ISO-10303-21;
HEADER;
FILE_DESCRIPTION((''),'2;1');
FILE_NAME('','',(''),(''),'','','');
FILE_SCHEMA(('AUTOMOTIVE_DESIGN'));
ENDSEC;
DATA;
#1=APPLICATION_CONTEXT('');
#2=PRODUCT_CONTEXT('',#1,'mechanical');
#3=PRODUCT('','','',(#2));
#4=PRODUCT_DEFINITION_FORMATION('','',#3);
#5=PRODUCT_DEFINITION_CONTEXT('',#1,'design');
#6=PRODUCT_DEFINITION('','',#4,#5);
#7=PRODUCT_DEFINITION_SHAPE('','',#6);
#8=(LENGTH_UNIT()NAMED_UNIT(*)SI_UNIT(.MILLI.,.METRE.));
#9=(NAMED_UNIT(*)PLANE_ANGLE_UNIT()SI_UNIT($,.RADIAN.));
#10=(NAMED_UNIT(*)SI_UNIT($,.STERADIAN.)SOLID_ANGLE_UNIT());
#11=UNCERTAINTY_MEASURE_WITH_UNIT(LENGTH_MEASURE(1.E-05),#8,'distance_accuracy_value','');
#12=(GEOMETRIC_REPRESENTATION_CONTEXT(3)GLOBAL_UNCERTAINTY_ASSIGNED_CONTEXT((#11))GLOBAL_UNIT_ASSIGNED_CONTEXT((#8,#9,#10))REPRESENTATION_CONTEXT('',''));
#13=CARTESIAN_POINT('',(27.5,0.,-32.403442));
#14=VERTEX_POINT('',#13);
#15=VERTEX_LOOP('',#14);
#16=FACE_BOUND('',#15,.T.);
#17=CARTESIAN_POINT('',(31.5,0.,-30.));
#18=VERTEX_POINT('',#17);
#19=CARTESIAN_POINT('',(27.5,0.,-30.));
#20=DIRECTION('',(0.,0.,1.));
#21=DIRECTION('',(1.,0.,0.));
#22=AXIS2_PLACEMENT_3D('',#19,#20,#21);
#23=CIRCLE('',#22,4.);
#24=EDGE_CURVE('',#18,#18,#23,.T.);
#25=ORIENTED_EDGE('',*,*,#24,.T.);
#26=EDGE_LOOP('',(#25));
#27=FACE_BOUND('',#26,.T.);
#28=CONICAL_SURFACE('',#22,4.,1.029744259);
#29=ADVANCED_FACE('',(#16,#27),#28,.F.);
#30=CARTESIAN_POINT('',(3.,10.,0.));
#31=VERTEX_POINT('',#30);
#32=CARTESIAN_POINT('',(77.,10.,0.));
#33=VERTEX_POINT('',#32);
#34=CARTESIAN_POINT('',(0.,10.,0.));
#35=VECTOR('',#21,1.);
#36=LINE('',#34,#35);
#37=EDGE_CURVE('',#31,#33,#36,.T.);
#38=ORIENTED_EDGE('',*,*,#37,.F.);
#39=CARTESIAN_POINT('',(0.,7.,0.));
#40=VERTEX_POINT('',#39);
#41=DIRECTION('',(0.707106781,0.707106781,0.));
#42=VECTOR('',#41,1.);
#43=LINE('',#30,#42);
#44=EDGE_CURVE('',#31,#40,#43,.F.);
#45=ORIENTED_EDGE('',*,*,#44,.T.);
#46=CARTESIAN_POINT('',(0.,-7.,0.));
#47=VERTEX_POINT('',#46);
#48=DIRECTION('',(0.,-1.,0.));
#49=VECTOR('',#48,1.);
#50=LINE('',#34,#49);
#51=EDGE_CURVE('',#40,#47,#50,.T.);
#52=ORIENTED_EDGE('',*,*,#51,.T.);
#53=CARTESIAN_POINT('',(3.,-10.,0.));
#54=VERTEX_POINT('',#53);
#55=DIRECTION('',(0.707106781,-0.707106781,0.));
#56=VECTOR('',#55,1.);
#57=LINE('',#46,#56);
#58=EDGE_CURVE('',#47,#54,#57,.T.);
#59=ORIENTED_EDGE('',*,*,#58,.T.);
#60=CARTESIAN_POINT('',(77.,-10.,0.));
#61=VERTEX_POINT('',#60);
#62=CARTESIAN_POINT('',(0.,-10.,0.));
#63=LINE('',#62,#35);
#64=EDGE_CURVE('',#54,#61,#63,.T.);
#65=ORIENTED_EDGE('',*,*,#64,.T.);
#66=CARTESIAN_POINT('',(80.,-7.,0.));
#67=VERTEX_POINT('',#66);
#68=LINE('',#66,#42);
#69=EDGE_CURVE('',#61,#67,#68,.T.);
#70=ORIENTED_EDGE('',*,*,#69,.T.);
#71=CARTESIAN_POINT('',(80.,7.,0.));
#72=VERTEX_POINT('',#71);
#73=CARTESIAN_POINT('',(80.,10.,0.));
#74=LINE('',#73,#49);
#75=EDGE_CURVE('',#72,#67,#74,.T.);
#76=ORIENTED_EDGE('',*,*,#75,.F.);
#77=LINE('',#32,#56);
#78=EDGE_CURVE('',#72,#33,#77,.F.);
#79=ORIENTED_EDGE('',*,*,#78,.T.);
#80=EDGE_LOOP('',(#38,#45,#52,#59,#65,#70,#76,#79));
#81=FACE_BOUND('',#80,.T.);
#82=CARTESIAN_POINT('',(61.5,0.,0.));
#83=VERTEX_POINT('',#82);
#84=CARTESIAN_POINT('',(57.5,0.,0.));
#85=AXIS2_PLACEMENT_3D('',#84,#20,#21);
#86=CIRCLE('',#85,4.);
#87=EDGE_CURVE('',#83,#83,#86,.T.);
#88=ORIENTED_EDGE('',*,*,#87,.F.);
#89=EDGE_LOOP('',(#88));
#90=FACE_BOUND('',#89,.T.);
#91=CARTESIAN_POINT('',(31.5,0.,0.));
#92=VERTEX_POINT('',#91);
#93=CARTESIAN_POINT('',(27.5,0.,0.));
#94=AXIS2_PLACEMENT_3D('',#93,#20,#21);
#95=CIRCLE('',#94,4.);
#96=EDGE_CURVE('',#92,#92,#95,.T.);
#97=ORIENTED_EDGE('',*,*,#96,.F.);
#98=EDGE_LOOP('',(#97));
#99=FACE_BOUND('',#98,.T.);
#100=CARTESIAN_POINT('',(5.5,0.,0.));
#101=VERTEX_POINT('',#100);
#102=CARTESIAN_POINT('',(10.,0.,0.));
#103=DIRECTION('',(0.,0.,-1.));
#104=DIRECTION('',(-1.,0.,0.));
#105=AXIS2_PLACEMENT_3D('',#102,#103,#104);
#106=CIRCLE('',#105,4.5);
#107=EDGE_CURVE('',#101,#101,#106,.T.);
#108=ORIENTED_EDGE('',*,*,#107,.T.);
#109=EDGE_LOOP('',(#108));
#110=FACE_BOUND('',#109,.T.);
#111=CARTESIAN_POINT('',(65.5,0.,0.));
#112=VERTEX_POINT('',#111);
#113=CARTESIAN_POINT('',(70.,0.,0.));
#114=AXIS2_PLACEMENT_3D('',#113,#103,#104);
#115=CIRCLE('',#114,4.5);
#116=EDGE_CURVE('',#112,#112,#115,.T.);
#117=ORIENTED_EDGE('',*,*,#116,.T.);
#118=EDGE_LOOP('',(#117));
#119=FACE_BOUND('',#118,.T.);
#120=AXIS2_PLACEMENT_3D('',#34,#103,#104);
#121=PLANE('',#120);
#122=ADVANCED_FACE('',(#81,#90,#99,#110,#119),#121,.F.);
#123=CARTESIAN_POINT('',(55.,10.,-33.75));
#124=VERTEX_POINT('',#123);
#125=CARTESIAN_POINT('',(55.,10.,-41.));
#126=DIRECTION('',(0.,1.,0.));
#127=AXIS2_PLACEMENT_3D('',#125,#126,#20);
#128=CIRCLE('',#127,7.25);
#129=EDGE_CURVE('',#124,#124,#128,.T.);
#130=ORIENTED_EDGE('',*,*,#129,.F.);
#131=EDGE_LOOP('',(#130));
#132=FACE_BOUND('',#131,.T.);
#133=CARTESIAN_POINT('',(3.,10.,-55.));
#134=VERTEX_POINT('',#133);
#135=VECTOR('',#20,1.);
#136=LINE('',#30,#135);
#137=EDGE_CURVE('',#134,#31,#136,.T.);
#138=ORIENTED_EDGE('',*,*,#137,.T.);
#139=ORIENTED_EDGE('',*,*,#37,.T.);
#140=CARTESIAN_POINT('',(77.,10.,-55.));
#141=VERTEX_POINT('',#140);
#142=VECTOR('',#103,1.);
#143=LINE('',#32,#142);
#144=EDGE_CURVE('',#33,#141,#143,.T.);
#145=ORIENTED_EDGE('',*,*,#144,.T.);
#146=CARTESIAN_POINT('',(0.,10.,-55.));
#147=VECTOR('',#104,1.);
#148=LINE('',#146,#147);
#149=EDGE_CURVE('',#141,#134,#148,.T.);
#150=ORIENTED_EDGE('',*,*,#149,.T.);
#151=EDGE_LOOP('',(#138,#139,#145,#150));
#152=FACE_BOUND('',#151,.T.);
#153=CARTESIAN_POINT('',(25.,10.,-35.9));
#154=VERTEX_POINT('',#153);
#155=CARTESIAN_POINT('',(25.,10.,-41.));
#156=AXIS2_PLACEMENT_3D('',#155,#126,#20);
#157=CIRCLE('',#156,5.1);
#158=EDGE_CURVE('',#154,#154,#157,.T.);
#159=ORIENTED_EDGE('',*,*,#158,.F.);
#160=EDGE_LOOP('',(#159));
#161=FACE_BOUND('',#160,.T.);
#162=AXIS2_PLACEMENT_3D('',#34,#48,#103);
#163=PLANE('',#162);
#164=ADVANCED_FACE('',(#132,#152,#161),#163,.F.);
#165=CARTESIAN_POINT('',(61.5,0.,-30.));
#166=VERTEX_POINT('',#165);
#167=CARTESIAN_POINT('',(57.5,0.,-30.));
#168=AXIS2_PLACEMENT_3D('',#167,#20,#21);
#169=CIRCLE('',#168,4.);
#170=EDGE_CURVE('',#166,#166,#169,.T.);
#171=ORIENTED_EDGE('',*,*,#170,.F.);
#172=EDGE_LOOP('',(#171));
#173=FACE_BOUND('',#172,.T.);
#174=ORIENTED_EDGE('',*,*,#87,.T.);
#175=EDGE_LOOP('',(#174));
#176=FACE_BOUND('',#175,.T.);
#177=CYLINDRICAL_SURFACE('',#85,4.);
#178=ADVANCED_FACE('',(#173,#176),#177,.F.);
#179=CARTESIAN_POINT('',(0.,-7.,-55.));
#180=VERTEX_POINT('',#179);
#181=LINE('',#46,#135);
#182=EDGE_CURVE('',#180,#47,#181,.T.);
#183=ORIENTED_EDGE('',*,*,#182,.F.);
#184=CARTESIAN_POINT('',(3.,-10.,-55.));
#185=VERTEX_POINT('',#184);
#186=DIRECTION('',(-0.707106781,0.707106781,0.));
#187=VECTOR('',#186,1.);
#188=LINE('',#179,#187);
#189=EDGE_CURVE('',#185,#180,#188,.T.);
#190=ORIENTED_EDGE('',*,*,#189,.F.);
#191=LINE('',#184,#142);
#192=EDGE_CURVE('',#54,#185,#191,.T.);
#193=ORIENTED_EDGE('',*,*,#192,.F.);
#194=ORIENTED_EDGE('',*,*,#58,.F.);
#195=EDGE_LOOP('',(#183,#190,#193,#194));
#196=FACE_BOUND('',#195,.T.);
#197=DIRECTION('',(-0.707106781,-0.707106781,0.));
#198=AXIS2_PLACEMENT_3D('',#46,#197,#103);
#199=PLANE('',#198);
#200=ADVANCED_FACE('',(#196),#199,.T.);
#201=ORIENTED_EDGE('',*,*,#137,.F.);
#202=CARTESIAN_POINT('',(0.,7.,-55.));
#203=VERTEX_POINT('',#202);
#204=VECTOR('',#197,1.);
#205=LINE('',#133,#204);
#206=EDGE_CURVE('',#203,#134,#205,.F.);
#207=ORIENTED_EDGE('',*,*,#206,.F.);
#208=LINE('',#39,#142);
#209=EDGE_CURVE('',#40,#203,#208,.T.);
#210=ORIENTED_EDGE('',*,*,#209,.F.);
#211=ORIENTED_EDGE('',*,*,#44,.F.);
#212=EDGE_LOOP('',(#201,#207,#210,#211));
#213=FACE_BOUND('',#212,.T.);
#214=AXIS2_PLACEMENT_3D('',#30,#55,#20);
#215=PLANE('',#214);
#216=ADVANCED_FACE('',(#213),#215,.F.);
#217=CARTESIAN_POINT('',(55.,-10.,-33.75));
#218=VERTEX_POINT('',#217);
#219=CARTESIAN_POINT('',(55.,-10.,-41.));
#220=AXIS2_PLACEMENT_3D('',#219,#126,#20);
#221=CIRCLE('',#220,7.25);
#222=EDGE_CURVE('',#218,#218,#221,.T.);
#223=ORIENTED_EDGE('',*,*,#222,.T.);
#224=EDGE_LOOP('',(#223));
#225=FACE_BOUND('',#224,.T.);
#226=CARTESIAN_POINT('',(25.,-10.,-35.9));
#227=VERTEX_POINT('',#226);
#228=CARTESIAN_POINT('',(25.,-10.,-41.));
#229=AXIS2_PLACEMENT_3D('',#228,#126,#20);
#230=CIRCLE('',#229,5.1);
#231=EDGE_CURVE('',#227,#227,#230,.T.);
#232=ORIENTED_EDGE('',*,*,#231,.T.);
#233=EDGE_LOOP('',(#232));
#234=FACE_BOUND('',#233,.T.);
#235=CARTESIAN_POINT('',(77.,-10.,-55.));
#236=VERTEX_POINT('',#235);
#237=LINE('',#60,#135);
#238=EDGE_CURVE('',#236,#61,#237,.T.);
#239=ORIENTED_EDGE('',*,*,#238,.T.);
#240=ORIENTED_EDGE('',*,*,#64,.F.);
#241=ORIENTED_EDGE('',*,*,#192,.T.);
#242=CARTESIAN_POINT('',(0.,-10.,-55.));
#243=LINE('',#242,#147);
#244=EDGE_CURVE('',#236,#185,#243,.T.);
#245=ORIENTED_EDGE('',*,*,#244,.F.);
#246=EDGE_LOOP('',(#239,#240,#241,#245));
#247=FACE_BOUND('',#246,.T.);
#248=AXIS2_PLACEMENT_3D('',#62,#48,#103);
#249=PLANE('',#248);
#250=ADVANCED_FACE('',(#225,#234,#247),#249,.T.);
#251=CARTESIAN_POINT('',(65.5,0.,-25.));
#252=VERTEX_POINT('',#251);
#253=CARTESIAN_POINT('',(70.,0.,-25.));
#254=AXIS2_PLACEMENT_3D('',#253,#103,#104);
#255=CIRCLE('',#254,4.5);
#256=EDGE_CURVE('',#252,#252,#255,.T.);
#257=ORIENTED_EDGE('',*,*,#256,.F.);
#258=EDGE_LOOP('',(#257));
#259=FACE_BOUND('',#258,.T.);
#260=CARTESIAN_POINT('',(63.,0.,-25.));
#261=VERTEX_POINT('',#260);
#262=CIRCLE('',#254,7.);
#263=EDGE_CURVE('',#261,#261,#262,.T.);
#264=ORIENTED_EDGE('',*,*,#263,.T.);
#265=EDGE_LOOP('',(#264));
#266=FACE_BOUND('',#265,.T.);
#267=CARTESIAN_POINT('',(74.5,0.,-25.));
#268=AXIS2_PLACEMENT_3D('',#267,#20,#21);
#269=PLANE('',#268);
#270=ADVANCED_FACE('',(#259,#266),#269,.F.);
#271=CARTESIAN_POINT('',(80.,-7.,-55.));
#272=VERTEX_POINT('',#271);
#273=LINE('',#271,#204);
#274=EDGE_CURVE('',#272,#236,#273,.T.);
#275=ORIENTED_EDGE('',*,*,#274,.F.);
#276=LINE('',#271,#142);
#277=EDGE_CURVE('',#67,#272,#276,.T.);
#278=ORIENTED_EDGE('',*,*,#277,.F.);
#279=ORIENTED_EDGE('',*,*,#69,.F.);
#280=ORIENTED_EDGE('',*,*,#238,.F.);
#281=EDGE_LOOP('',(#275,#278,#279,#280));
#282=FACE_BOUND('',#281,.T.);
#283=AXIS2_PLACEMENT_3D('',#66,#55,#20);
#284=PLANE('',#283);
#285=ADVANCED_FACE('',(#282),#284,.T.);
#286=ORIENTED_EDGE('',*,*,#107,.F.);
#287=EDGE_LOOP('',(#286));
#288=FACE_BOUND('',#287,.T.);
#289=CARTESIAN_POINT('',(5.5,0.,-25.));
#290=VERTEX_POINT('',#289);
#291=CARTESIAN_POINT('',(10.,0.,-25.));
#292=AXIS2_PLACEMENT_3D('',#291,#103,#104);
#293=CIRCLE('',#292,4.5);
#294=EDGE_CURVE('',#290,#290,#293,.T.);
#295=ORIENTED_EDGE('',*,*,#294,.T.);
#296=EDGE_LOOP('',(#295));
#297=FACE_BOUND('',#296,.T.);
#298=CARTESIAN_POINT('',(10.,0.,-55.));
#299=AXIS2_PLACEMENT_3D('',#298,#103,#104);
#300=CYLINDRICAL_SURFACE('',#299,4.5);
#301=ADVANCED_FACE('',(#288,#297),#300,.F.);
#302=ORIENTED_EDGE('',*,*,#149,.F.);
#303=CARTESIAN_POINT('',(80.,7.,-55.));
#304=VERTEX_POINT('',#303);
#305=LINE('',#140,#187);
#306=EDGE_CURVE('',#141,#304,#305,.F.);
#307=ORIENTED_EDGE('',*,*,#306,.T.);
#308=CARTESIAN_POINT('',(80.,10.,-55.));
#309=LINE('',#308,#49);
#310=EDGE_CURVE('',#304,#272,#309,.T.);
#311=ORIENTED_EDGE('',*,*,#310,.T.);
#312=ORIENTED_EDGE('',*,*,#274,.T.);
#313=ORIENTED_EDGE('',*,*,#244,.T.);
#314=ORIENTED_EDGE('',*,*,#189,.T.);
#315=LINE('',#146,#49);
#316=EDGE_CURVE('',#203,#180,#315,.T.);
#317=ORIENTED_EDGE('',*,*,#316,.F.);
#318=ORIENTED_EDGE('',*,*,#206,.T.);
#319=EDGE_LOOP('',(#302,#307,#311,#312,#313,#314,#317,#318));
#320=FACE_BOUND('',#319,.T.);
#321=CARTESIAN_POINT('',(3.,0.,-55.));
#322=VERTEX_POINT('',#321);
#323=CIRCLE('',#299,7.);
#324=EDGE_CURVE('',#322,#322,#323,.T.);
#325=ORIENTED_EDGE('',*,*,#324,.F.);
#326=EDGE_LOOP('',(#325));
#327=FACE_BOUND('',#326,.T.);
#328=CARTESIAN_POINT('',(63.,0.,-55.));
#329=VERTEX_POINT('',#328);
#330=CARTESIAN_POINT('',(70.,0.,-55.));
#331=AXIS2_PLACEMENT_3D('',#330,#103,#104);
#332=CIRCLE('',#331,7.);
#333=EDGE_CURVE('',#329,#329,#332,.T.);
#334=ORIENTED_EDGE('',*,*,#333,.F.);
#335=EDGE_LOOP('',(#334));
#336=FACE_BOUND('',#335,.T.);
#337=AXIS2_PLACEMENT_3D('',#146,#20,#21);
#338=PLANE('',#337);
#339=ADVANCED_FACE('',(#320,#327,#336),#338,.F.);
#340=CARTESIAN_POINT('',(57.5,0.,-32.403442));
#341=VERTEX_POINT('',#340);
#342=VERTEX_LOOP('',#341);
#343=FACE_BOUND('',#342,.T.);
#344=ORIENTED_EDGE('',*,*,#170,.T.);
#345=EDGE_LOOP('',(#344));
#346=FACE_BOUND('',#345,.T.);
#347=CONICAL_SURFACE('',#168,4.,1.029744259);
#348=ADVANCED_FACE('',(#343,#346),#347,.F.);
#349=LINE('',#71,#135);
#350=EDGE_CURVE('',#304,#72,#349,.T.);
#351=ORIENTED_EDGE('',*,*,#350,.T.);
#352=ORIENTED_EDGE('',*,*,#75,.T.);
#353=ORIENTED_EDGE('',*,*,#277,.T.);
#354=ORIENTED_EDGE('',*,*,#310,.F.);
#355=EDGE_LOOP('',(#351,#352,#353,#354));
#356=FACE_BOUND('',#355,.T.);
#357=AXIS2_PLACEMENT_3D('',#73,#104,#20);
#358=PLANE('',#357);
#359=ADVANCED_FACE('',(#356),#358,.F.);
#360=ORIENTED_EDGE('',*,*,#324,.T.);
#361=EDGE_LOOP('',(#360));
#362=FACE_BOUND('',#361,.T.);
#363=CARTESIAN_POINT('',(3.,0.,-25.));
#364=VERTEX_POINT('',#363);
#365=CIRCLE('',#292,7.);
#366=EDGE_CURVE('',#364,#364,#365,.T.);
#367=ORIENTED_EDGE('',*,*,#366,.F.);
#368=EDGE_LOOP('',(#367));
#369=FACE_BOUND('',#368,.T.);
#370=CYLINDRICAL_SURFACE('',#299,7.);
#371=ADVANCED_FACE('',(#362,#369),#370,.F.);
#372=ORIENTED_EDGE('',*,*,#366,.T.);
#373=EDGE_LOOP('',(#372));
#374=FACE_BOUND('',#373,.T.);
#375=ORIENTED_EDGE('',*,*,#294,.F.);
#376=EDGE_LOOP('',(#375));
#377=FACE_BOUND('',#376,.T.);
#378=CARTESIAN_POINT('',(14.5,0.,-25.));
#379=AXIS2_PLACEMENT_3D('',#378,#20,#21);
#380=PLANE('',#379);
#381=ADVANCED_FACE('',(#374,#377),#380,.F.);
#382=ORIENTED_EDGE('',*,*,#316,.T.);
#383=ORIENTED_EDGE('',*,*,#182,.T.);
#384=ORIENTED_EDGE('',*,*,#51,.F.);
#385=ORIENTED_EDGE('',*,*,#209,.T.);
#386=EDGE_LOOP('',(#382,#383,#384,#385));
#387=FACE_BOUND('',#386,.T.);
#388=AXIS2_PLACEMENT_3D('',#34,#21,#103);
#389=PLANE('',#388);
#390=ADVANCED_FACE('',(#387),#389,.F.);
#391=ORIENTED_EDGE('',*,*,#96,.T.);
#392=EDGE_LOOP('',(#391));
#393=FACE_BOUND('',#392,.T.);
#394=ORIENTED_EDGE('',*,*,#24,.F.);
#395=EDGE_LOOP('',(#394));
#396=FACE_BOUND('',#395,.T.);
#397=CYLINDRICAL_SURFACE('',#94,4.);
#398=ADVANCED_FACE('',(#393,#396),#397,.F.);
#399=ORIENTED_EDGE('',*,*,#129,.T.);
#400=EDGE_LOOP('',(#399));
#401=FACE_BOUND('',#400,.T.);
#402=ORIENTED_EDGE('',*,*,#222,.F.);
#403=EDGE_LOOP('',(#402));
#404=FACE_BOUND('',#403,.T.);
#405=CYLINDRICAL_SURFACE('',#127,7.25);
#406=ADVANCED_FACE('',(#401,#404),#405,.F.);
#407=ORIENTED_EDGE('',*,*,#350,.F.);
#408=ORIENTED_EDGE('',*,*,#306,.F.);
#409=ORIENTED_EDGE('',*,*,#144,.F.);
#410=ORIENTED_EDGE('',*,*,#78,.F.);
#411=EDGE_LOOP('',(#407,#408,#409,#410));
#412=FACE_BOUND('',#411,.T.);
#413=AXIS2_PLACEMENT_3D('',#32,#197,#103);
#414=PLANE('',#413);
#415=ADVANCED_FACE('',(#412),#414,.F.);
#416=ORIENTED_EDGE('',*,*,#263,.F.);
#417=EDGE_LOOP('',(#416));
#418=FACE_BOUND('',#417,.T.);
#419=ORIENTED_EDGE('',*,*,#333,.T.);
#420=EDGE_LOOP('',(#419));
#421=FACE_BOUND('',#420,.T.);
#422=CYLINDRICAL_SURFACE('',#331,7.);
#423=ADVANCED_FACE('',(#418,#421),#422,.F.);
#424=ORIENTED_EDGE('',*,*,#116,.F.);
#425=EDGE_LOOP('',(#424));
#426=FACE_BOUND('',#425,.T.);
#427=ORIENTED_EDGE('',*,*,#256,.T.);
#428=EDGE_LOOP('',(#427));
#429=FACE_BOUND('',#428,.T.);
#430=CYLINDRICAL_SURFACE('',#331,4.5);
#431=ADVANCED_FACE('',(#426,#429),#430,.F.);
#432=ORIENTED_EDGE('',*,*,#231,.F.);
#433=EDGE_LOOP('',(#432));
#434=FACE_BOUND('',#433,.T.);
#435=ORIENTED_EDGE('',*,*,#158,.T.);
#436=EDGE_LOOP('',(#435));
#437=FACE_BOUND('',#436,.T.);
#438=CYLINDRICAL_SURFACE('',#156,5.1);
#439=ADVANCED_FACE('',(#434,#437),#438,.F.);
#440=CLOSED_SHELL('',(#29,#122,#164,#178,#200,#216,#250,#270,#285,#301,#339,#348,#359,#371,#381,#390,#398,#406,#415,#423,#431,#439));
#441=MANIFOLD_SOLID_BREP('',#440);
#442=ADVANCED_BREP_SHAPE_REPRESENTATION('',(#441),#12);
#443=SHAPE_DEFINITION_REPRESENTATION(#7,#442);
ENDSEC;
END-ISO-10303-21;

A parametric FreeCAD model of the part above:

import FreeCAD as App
import Part
import Sketcher
from FreeCAD import Vector
Q = App.Units.Quantity


def edges_at(feature, points):
    """Names of the edges that pass closest to the given points."""
    edges = feature.Shape.Edges
    near = lambda p: min(range(len(edges)), key=lambda i: edges[i].distToShape(Part.Vertex(*p))[0])
    return sorted({f"Edge{near(p) + 1}" for p in points})

doc = App.newDocument("Part")
params = doc.addObject("Spreadsheet::Sheet", "Params")
for row, (alias, value) in enumerate([
    ("sketch1_width", "80 mm"),
    ("sketch1_height", "55 mm"),
    ("pad1_length", "20 mm"),
    ("sketch2_diameter", "10.2 mm"),
    ("hole_diameter", "10.2 mm"),
    ("sketch3_diameter", "14.5 mm"),
    ("hole2_diameter", "14.5 mm"),
    ("sketch4_diameter", "9 mm"),
    ("hole3_diameter", "9 mm"),
    ("hole3_cbore_diameter", "14 mm"),
    ("hole3_cbore_depth", "30 mm"),
    ("sketch5_diameter", "8 mm"),
    ("hole4_diameter", "8 mm"),
    ("hole4_depth", "30 mm"),
    ("chamfer_size", "3 mm"),
], start=1):
    params.set(f"A{row}", alias)
    params.set(f"B{row}", "=" + value)
    params.setAlias(f"B{row}", alias)

body = doc.addObject("PartDesign::Body", "Body")

# Sketch on XZ plane
sketch1 = body.newObject("Sketcher::SketchObject", "Sketch")
sketch1.AttachmentSupport = (doc.getObject("XZ_Plane"), [""])
sketch1.MapMode = "FlatFace"
sketch1.addGeometry([
    Part.LineSegment(Vector(0, -55, 0), Vector(0, 0, 0)),
    Part.LineSegment(Vector(0, 0, 0), Vector(80, 0, 0)),
    Part.LineSegment(Vector(80, 0, 0), Vector(80, -55, 0)),
    Part.LineSegment(Vector(80, -55, 0), Vector(0, -55, 0)),
], False)
sketch1.addConstraint([
    Sketcher.Constraint("Coincident", 0, 2, 1, 1),
    Sketcher.Constraint("Coincident", 1, 2, 2, 1),
    Sketcher.Constraint("Coincident", 2, 2, 3, 1),
    Sketcher.Constraint("Coincident", 3, 2, 0, 1),
    Sketcher.Constraint("Vertical", 0),
    Sketcher.Constraint("Horizontal", 1),
    Sketcher.Constraint("Vertical", 2),
    Sketcher.Constraint("Horizontal", 3),
    Sketcher.Constraint("Coincident", 0, 2, -1, 1),
    Sketcher.Constraint("DistanceX", 1, 1, 1, 2, Q("80 mm")),
    Sketcher.Constraint("DistanceY", 0, 1, 0, 2, Q("55 mm")),
])
sketch1.setExpression("Constraints[9]", "Params.sketch1_width")
sketch1.setExpression("Constraints[10]", "Params.sketch1_height")
pad1 = body.newObject("PartDesign::Pad", "Pad")
pad1.Profile = sketch1
pad1.setExpression("Length", "Params.pad1_length")
pad1.Midplane = True

# Sketch on XZ plane
sketch2 = body.newObject("Sketcher::SketchObject", "Sketch001")
sketch2.AttachmentSupport = (doc.getObject("XZ_Plane"), [""])
sketch2.MapMode = "FlatFace"
sketch2.AttachmentOffset = App.Placement(Vector(0, 0, -10), App.Rotation())
sketch2.addGeometry(Part.Circle(Vector(25, -41, 0), Vector(0, 0, 1), 5), False)
sketch2.addConstraint([
    Sketcher.Constraint("Diameter", 0, Q("10.2 mm")),
    Sketcher.Constraint("DistanceX", -1, 1, 0, 3, Q("25 mm")),
    Sketcher.Constraint("DistanceY", 0, 3, -1, 1, Q("41 mm")),
])
sketch2.setExpression("Constraints[0]", "Params.sketch2_diameter")
doc.recompute()
hole = body.newObject("PartDesign::Hole", "Hole")
hole.Profile = sketch2
hole.ThreadType = "None"
hole.setExpression("Diameter", "Params.hole_diameter")
hole.DepthType = "ThroughAll"
hole.Reversed = True

# Sketch on XZ plane
sketch3 = body.newObject("Sketcher::SketchObject", "Sketch002")
sketch3.AttachmentSupport = (doc.getObject("XZ_Plane"), [""])
sketch3.MapMode = "FlatFace"
sketch3.AttachmentOffset = App.Placement(Vector(0, 0, -10), App.Rotation())
sketch3.addGeometry(Part.Circle(Vector(55, -41, 0), Vector(0, 0, 1), 7), False)
sketch3.addConstraint([
    Sketcher.Constraint("Diameter", 0, Q("14.5 mm")),
    Sketcher.Constraint("DistanceX", -1, 1, 0, 3, Q("55 mm")),
    Sketcher.Constraint("DistanceY", 0, 3, -1, 1, Q("41 mm")),
])
sketch3.setExpression("Constraints[0]", "Params.sketch3_diameter")
doc.recompute()
hole2 = body.newObject("PartDesign::Hole", "Hole001")
hole2.Profile = sketch3
hole2.ThreadType = "None"
hole2.setExpression("Diameter", "Params.hole2_diameter")
hole2.DepthType = "ThroughAll"
hole2.Reversed = True

# Sketch on XY plane
sketch4 = body.newObject("Sketcher::SketchObject", "Sketch003")
sketch4.AttachmentSupport = (doc.getObject("XY_Plane"), [""])
sketch4.MapMode = "FlatFace"
sketch4.AttachmentOffset = App.Placement(Vector(0, 0, -55), App.Rotation())
sketch4.addGeometry([
    Part.Circle(Vector(70, 0, 0), Vector(0, 0, 1), 4.5),
    Part.Circle(Vector(10, 0, 0), Vector(0, 0, 1), 4.5),
], False)
sketch4.addConstraint([
    Sketcher.Constraint("Equal", 0, 1),
    Sketcher.Constraint("PointOnObject", 0, 3, -1),
    Sketcher.Constraint("PointOnObject", 1, 3, -1),
    Sketcher.Constraint("Diameter", 0, Q("9 mm")),
    Sketcher.Constraint("DistanceX", -1, 1, 0, 3, Q("70 mm")),
    Sketcher.Constraint("DistanceX", -1, 1, 1, 3, Q("10 mm")),
])
sketch4.setExpression("Constraints[3]", "Params.sketch4_diameter")
doc.recompute()
hole3 = body.newObject("PartDesign::Hole", "Hole002")
hole3.Profile = sketch4
hole3.ThreadType = "None"
hole3.setExpression("Diameter", "Params.hole3_diameter")
hole3.DepthType = "ThroughAll"
hole3.HoleCutType = "Counterbore"
hole3.setExpression("HoleCutDiameter", "Params.hole3_cbore_diameter")
hole3.setExpression("HoleCutDepth", "Params.hole3_cbore_depth")
hole3.Reversed = True

# Sketch on XY plane
sketch5 = body.newObject("Sketcher::SketchObject", "Sketch004")
sketch5.AttachmentSupport = (doc.getObject("XY_Plane"), [""])
sketch5.MapMode = "FlatFace"
sketch5.addGeometry([
    Part.Circle(Vector(27.5, 0, 0), Vector(0, 0, 1), 4),
    Part.Circle(Vector(57.5, 0, 0), Vector(0, 0, 1), 4),
], False)
sketch5.addConstraint([
    Sketcher.Constraint("Equal", 0, 1),
    Sketcher.Constraint("PointOnObject", 0, 3, -1),
    Sketcher.Constraint("PointOnObject", 1, 3, -1),
    Sketcher.Constraint("Diameter", 0, Q("8 mm")),
    Sketcher.Constraint("DistanceX", 0, 3, 1, 3, Q("30 mm")),
    Sketcher.Constraint("DistanceX", -1, 1, 0, 3, Q("27.5 mm")),
])
sketch5.setExpression("Constraints[3]", "Params.sketch5_diameter")
doc.recompute()
hole4 = body.newObject("PartDesign::Hole", "Hole003")
hole4.Profile = sketch5
hole4.ThreadType = "None"
hole4.setExpression("Diameter", "Params.hole4_diameter")
hole4.DepthType = "Dimension"
hole4.setExpression("Depth", "Params.hole4_depth")
hole4.DrillPoint = "Angled"
hole4.DrillPointAngle = 118
doc.recompute()

chamfer = body.newObject("PartDesign::Chamfer", "Chamfer")
chamfer.Base = (hole4, edges_at(hole4, [
    (80, 10, -27.5),
    (0, 10, -27.5),
    (80, -10, -27.5),
    (0, -10, -27.5),
]))
chamfer.setExpression("Size", "Params.chamfer_size")

doc.recompute()
